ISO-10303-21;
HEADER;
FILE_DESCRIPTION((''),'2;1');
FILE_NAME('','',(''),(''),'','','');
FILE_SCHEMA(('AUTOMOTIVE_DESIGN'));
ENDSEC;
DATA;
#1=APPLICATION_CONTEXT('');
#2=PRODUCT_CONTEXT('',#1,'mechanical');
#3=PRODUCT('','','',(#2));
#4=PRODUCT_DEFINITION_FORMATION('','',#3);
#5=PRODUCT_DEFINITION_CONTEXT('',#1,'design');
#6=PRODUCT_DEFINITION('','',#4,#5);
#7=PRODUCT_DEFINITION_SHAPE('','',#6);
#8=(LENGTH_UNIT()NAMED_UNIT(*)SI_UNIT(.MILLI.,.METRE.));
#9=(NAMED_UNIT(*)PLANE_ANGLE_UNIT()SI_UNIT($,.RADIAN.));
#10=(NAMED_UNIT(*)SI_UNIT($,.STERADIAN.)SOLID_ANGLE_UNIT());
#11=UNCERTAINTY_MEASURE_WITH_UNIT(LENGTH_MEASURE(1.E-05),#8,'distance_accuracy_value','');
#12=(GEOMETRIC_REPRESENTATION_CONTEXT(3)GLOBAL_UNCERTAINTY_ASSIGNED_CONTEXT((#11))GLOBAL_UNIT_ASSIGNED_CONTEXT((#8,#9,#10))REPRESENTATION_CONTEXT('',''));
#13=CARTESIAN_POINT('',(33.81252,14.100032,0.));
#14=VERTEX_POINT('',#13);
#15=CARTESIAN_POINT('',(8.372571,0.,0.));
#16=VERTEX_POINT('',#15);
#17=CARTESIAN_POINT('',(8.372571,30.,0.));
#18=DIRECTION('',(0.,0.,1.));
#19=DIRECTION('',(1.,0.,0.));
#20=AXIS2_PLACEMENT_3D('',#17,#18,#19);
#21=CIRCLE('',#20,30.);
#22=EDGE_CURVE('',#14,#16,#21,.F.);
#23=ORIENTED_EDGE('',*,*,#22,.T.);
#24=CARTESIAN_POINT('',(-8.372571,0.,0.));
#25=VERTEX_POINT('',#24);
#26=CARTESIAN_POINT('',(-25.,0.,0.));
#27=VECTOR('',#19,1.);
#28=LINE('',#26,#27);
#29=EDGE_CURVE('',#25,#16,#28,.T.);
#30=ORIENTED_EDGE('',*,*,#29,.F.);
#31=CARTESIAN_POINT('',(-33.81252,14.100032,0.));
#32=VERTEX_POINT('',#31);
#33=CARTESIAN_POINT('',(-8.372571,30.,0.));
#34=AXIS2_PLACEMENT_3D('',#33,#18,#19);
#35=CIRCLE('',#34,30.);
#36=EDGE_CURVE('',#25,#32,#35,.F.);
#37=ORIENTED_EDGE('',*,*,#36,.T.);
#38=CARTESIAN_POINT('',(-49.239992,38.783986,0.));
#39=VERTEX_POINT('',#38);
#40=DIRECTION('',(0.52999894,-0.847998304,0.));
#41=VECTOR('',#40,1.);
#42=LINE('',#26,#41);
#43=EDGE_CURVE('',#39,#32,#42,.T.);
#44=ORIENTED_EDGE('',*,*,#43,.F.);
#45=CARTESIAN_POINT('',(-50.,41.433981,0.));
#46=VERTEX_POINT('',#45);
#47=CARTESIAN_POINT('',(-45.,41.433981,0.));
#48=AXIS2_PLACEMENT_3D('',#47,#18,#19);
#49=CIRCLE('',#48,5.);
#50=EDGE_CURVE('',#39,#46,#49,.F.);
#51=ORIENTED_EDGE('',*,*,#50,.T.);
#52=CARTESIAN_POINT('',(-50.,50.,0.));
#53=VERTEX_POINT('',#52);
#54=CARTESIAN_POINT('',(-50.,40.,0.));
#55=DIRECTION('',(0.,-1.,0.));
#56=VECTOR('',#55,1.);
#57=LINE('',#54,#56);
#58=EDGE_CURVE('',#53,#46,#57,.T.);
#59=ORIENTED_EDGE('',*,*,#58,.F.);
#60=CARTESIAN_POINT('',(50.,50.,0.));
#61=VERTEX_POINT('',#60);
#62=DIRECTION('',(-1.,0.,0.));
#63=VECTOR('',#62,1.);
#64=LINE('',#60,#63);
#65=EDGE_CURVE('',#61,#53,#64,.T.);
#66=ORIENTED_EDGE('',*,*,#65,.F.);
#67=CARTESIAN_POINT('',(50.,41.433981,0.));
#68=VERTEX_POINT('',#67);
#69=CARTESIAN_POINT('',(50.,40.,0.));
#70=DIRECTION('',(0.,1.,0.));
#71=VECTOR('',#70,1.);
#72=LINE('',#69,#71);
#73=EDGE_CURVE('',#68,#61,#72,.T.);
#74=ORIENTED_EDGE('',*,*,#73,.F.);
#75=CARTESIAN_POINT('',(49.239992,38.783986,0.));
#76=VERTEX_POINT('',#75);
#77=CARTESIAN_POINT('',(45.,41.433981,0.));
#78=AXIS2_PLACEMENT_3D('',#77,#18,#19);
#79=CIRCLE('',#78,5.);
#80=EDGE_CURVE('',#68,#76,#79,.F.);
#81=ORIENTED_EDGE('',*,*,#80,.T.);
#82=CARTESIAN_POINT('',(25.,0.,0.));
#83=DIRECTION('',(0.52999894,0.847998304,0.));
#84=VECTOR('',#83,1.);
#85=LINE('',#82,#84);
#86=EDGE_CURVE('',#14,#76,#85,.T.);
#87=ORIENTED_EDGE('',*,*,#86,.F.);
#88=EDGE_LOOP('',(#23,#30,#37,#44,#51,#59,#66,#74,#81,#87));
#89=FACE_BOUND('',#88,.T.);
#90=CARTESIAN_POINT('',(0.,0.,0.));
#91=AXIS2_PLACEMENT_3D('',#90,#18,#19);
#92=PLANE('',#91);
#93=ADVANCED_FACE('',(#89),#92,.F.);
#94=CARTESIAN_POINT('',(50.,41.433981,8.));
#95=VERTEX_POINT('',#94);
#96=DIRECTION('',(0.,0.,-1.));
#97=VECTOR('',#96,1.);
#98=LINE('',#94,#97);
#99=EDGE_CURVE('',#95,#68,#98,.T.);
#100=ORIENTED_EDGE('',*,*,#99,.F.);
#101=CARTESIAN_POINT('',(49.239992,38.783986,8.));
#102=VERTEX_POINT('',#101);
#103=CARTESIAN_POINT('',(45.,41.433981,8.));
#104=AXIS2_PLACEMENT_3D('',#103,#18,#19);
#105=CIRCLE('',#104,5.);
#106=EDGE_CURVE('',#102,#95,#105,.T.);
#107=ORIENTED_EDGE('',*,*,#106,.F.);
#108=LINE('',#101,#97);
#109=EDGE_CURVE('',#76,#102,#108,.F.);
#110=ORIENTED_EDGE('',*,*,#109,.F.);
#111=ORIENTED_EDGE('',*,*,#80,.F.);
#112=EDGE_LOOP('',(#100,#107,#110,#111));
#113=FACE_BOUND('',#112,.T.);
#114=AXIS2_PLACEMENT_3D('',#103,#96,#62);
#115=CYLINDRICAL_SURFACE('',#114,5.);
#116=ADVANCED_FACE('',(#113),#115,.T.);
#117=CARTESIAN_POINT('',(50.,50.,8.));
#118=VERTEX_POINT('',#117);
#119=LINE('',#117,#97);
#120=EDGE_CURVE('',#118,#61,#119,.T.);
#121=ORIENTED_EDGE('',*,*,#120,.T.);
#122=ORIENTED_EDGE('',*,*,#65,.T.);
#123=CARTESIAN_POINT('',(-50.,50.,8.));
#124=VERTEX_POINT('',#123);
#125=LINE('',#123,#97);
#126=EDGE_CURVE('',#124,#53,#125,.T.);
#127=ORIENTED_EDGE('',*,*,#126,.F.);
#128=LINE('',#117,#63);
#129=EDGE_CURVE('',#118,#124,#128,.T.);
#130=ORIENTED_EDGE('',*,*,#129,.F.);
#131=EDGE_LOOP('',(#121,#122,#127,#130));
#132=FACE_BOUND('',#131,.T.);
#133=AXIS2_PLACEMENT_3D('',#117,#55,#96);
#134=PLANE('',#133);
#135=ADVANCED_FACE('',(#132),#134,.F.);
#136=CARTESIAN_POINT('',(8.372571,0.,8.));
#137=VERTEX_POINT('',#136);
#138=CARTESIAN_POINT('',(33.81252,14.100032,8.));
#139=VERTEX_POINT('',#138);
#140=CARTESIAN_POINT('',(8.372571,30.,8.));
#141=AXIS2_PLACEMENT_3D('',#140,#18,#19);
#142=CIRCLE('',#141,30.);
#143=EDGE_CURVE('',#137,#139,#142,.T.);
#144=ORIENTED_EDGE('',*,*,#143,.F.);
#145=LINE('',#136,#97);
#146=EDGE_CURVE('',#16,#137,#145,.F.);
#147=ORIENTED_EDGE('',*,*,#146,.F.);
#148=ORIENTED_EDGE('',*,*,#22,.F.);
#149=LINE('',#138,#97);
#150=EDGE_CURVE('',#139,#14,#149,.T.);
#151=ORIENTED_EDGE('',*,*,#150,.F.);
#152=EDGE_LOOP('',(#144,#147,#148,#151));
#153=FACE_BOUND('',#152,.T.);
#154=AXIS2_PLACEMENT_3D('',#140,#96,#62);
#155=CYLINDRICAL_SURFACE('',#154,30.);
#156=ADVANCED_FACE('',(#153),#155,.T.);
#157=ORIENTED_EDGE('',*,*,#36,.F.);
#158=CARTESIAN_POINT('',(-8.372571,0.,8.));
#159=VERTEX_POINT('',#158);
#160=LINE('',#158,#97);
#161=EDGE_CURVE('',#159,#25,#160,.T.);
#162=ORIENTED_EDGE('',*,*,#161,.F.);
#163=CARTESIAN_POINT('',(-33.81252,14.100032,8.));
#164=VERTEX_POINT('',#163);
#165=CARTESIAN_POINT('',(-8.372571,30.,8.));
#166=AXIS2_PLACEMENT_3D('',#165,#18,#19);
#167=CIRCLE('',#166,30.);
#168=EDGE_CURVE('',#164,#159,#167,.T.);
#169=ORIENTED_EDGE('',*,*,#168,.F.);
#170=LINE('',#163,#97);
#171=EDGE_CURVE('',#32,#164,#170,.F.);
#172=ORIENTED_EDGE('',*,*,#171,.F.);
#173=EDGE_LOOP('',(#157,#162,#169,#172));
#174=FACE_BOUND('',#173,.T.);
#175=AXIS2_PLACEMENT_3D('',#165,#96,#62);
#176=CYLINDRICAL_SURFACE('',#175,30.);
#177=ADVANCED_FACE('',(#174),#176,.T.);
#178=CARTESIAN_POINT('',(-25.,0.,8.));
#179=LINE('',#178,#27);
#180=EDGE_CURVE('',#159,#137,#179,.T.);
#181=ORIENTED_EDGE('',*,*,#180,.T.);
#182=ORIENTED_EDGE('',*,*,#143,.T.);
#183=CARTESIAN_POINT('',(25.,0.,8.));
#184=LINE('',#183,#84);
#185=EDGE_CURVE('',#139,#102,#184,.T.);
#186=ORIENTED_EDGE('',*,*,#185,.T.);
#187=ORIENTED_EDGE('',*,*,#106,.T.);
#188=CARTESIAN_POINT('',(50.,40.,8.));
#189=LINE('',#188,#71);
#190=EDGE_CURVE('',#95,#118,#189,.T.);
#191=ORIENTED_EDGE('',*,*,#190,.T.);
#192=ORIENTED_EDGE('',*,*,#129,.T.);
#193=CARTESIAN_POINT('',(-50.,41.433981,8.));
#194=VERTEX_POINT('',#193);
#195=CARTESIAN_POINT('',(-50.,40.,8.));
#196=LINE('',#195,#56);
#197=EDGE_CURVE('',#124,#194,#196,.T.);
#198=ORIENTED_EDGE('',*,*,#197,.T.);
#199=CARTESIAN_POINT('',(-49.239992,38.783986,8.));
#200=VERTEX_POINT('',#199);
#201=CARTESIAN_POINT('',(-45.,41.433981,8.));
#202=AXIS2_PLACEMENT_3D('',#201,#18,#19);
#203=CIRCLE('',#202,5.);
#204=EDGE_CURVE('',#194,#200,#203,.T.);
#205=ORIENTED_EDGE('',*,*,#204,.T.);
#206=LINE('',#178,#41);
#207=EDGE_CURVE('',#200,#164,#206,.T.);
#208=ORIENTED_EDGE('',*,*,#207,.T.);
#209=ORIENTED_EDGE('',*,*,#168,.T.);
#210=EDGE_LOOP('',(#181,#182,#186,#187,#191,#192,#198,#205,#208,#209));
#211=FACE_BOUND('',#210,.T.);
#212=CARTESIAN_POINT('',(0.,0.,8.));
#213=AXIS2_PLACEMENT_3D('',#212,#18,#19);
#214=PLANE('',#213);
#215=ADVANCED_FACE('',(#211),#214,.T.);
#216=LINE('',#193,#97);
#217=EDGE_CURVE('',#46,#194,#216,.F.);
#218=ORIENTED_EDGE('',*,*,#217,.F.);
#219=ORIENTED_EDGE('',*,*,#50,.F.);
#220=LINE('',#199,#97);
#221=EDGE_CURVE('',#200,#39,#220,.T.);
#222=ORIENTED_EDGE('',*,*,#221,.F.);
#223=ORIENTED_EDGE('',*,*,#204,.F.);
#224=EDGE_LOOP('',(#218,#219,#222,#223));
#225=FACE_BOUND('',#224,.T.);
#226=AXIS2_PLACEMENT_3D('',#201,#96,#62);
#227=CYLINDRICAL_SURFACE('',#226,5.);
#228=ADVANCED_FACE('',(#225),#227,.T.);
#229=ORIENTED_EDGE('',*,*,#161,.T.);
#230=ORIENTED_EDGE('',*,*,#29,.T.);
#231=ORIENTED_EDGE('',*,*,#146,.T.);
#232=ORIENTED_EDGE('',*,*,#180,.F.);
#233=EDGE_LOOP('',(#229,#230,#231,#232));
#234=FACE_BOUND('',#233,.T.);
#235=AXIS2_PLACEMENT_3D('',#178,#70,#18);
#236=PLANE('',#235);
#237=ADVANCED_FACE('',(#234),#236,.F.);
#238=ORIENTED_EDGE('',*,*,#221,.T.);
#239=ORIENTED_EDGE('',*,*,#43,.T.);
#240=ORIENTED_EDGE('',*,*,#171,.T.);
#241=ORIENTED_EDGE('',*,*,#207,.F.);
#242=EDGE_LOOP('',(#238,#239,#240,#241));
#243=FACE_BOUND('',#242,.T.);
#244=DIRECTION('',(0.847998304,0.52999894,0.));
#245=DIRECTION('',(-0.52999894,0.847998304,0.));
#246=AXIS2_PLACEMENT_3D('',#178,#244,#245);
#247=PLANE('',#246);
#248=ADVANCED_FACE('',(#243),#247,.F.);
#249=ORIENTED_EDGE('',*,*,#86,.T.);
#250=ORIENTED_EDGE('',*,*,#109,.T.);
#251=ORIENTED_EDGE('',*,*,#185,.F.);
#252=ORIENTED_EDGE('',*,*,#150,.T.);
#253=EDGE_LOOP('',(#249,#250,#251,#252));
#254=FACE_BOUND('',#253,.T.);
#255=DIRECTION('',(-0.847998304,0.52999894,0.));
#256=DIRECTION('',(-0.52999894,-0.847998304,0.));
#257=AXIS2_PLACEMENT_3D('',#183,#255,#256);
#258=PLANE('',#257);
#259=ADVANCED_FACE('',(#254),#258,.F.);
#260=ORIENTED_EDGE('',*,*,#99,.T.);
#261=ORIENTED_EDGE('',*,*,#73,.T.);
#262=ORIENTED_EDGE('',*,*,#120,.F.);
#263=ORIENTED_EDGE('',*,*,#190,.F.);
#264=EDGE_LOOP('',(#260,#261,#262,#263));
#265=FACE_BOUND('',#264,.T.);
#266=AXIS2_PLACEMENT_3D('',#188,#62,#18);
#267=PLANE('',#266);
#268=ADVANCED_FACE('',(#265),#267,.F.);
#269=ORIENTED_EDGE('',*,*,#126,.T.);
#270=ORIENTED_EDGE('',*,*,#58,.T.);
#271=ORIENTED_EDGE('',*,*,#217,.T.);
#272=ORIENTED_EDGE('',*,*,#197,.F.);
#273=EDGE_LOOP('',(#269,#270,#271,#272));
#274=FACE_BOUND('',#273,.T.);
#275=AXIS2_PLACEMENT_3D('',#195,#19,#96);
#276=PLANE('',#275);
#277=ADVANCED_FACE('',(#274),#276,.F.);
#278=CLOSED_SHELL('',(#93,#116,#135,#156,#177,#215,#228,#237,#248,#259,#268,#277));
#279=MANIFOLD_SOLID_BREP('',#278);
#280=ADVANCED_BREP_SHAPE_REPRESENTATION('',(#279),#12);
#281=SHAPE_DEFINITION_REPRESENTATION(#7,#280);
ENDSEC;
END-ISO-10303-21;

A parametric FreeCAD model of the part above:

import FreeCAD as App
import Part
import Sketcher
from FreeCAD import Vector
Q = App.Units.Quantity


def edges_at(feature, points):
    """Names of the edges that pass closest to the given points."""
    edges = feature.Shape.Edges
    near = lambda p: min(range(len(edges)), key=lambda i: edges[i].distToShape(Part.Vertex(*p))[0])
    return sorted({f"Edge{near(p) + 1}" for p in points})

doc = App.newDocument("Part")
params = doc.addObject("Spreadsheet::Sheet", "Params")
for row, (alias, value) in enumerate([
    ("sketch1_width", "50 mm"),
    ("sketch1_width2", "100 mm"),
    ("sketch1_height", "10 mm"),
    ("pad1_length", "8 mm"),
    ("fillet_radius", "30 mm"),
    ("fillet2_radius", "5 mm"),
], start=1):
    params.set(f"A{row}", alias)
    params.set(f"B{row}", "=" + value)
    params.setAlias(f"B{row}", alias)

body = doc.addObject("PartDesign::Body", "Body")

sketch1 = body.newObject("Sketcher::SketchObject", "Sketch")
sketch1.AttachmentSupport = (doc.getObject("XY_Plane"), [""])
sketch1.MapMode = "FlatFace"
sketch1.addGeometry([
    Part.LineSegment(Vector(-25, 0, 0), Vector(25, 0, 0)),
    Part.LineSegment(Vector(25, 0, 0), Vector(50, 40, 0)),
    Part.LineSegment(Vector(50, 40, 0), Vector(50, 50, 0)),
    Part.LineSegment(Vector(50, 50, 0), Vector(-50, 50, 0)),
    Part.LineSegment(Vector(-50, 50, 0), Vector(-50, 40, 0)),
    Part.LineSegment(Vector(-50, 40, 0), Vector(-25, 0, 0)),
], False)
sketch1.addConstraint([
    Sketcher.Constraint("Coincident", 0, 2, 1, 1),
    Sketcher.Constraint("Coincident", 1, 2, 2, 1),
    Sketcher.Constraint("Coincident", 2, 2, 3, 1),
    Sketcher.Constraint("Coincident", 3, 2, 4, 1),
    Sketcher.Constraint("Coincident", 4, 2, 5, 1),
    Sketcher.Constraint("Coincident", 5, 2, 0, 1),
    Sketcher.Constraint("Horizontal", 0),
    Sketcher.Constraint("Vertical", 2),
    Sketcher.Constraint("Horizontal", 3),
    Sketcher.Constraint("Vertical", 4),
    Sketcher.Constraint("Symmetric", 0, 2, 5, 2, -1, 1),
    Sketcher.Constraint("Symmetric", 1, 2, 4, 2, -2),
    Sketcher.Constraint("DistanceX", 0, 1, 0, 2, Q("50 mm")),
    Sketcher.Constraint("DistanceX", 3, 2, 3, 1, Q("100 mm")),
    Sketcher.Constraint("DistanceY", 2, 1, 2, 2, Q("10 mm")),
    Sketcher.Constraint("DistanceY", -1, 1, 1, 2, Q("40 mm")),
])
sketch1.setExpression("Constraints[12]", "Params.sketch1_width")
sketch1.setExpression("Constraints[13]", "Params.sketch1_width2")
sketch1.setExpression("Constraints[14]", "Params.sketch1_height")
pad1 = body.newObject("PartDesign::Pad", "Pad")
pad1.Profile = sketch1
pad1.setExpression("Length", "Params.pad1_length")
doc.recompute()

fillet = body.newObject("PartDesign::Fillet", "Fillet")
fillet.Base = (pad1, edges_at(pad1, [(25, 0, 4), (-25, 0, 4)]))
fillet.setExpression("Radius", "Params.fillet_radius")
doc.recompute()

fillet2 = body.newObject("PartDesign::Fillet", "Fillet001")
fillet2.Base = (fillet, edges_at(fillet, [(50, 40, 4), (-50, 40, 4)]))
fillet2.setExpression("Radius", "Params.fillet2_radius")

doc.recompute()
